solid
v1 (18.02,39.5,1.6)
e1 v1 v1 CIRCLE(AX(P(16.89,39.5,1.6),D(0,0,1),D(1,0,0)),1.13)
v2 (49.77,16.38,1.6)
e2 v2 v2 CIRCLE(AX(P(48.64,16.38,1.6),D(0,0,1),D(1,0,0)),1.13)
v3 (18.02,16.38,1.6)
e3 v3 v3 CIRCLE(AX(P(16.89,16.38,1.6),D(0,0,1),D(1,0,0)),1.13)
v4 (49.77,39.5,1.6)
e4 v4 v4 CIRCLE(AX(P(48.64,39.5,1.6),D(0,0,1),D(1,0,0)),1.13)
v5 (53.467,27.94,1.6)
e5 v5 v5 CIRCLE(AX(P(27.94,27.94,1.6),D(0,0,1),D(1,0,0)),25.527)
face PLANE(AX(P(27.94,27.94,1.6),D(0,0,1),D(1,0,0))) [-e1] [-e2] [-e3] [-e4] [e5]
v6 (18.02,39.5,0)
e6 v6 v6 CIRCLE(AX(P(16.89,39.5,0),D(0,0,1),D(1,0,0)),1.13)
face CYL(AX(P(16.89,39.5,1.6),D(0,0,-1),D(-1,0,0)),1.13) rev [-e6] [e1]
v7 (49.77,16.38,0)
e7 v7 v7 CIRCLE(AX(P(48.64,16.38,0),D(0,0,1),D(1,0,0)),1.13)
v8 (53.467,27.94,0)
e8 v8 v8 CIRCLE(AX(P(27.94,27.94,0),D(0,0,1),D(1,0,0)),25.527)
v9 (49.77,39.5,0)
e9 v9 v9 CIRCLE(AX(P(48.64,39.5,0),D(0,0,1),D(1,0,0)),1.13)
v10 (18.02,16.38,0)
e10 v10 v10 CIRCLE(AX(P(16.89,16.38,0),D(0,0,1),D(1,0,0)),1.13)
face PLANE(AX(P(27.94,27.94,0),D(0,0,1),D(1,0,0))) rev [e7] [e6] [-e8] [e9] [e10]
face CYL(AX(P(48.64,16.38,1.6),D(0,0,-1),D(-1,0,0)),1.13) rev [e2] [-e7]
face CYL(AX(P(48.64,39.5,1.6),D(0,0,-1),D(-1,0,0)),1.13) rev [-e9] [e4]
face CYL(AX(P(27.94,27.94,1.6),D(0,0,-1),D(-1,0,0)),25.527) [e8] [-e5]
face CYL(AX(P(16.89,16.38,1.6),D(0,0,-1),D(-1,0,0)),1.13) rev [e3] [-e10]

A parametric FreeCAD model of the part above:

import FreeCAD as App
import Part
import Sketcher

doc = App.newDocument("Part")
body = doc.addObject("PartDesign::Body", "Body")

# Sketch on XY plane
sketch1 = body.newObject("Sketcher::SketchObject", "Sketch")
sketch1.AttachmentSupport = (doc.getObject("XY_Plane"), [""])
sketch1.MapMode = "FlatFace"
sketch1.addGeometry(Part.Circle(App.Vector(27.94, 27.94, 0), App.Vector(0, 0, 1), 25.527), False)
sketch1.addConstraint(Sketcher.Constraint("Diameter", 0, 51.054))
sketch1.addConstraint(Sketcher.Constraint("DistanceX", -1, 1, 0, 3, 27.94))
sketch1.addConstraint(Sketcher.Constraint("DistanceY", -1, 1, 0, 3, 27.94))
pad1 = body.newObject("PartDesign::Pad", "Pad")
pad1.Profile = sketch1
pad1.Length = 1.6

# Sketch on XY plane
sketch2 = body.newObject("Sketcher::SketchObject", "Sketch001")
sketch2.AttachmentSupport = (doc.getObject("XY_Plane"), [""])
sketch2.MapMode = "FlatFace"
sketch2.addGeometry(Part.Circle(App.Vector(48.64, 39.5, 0), App.Vector(0, 0, 1), 1.13), False)
sketch2.addGeometry(Part.Circle(App.Vector(48.64, 16.38, 0), App.Vector(0, 0, 1), 1.13), False)
sketch2.addGeometry(Part.Circle(App.Vector(16.89, 39.5, 0), App.Vector(0, 0, 1), 1.13), False)
sketch2.addGeometry(Part.Circle(App.Vector(16.89, 16.38, 0), App.Vector(0, 0, 1), 1.13), False)
sketch2.addConstraint(Sketcher.Constraint("Equal", 0, 1))
sketch2.addConstraint(Sketcher.Constraint("Equal", 1, 2))
sketch2.addConstraint(Sketcher.Constraint("Equal", 2, 3))
sketch2.addConstraint(Sketcher.Constraint("Horizontal", 0, 3, 2, 3))
sketch2.addConstraint(Sketcher.Constraint("Horizontal", 1, 3, 3, 3))
sketch2.addConstraint(Sketcher.Constraint("Vertical", 0, 3, 1, 3))
sketch2.addConstraint(Sketcher.Constraint("Vertical", 2, 3, 3, 3))
sketch2.addConstraint(Sketcher.Constraint("Diameter", 0, 2.26))
sketch2.addConstraint(Sketcher.Constraint("DistanceY", -1, 1, 0, 3, 39.5))
sketch2.addConstraint(Sketcher.Constraint("DistanceX", -1, 1, 0, 3, 48.64))
sketch2.addConstraint(Sketcher.Constraint("DistanceY", -1, 1, 1, 3, 16.38))
sketch2.addConstraint(Sketcher.Constraint("DistanceX", -1, 1, 2, 3, 16.89))
pocket1 = body.newObject("PartDesign::Pocket", "Pocket")
pocket1.Profile = sketch2
pocket1.Type = "ThroughAll"
pocket1.Reversed = True

doc.recompute()
